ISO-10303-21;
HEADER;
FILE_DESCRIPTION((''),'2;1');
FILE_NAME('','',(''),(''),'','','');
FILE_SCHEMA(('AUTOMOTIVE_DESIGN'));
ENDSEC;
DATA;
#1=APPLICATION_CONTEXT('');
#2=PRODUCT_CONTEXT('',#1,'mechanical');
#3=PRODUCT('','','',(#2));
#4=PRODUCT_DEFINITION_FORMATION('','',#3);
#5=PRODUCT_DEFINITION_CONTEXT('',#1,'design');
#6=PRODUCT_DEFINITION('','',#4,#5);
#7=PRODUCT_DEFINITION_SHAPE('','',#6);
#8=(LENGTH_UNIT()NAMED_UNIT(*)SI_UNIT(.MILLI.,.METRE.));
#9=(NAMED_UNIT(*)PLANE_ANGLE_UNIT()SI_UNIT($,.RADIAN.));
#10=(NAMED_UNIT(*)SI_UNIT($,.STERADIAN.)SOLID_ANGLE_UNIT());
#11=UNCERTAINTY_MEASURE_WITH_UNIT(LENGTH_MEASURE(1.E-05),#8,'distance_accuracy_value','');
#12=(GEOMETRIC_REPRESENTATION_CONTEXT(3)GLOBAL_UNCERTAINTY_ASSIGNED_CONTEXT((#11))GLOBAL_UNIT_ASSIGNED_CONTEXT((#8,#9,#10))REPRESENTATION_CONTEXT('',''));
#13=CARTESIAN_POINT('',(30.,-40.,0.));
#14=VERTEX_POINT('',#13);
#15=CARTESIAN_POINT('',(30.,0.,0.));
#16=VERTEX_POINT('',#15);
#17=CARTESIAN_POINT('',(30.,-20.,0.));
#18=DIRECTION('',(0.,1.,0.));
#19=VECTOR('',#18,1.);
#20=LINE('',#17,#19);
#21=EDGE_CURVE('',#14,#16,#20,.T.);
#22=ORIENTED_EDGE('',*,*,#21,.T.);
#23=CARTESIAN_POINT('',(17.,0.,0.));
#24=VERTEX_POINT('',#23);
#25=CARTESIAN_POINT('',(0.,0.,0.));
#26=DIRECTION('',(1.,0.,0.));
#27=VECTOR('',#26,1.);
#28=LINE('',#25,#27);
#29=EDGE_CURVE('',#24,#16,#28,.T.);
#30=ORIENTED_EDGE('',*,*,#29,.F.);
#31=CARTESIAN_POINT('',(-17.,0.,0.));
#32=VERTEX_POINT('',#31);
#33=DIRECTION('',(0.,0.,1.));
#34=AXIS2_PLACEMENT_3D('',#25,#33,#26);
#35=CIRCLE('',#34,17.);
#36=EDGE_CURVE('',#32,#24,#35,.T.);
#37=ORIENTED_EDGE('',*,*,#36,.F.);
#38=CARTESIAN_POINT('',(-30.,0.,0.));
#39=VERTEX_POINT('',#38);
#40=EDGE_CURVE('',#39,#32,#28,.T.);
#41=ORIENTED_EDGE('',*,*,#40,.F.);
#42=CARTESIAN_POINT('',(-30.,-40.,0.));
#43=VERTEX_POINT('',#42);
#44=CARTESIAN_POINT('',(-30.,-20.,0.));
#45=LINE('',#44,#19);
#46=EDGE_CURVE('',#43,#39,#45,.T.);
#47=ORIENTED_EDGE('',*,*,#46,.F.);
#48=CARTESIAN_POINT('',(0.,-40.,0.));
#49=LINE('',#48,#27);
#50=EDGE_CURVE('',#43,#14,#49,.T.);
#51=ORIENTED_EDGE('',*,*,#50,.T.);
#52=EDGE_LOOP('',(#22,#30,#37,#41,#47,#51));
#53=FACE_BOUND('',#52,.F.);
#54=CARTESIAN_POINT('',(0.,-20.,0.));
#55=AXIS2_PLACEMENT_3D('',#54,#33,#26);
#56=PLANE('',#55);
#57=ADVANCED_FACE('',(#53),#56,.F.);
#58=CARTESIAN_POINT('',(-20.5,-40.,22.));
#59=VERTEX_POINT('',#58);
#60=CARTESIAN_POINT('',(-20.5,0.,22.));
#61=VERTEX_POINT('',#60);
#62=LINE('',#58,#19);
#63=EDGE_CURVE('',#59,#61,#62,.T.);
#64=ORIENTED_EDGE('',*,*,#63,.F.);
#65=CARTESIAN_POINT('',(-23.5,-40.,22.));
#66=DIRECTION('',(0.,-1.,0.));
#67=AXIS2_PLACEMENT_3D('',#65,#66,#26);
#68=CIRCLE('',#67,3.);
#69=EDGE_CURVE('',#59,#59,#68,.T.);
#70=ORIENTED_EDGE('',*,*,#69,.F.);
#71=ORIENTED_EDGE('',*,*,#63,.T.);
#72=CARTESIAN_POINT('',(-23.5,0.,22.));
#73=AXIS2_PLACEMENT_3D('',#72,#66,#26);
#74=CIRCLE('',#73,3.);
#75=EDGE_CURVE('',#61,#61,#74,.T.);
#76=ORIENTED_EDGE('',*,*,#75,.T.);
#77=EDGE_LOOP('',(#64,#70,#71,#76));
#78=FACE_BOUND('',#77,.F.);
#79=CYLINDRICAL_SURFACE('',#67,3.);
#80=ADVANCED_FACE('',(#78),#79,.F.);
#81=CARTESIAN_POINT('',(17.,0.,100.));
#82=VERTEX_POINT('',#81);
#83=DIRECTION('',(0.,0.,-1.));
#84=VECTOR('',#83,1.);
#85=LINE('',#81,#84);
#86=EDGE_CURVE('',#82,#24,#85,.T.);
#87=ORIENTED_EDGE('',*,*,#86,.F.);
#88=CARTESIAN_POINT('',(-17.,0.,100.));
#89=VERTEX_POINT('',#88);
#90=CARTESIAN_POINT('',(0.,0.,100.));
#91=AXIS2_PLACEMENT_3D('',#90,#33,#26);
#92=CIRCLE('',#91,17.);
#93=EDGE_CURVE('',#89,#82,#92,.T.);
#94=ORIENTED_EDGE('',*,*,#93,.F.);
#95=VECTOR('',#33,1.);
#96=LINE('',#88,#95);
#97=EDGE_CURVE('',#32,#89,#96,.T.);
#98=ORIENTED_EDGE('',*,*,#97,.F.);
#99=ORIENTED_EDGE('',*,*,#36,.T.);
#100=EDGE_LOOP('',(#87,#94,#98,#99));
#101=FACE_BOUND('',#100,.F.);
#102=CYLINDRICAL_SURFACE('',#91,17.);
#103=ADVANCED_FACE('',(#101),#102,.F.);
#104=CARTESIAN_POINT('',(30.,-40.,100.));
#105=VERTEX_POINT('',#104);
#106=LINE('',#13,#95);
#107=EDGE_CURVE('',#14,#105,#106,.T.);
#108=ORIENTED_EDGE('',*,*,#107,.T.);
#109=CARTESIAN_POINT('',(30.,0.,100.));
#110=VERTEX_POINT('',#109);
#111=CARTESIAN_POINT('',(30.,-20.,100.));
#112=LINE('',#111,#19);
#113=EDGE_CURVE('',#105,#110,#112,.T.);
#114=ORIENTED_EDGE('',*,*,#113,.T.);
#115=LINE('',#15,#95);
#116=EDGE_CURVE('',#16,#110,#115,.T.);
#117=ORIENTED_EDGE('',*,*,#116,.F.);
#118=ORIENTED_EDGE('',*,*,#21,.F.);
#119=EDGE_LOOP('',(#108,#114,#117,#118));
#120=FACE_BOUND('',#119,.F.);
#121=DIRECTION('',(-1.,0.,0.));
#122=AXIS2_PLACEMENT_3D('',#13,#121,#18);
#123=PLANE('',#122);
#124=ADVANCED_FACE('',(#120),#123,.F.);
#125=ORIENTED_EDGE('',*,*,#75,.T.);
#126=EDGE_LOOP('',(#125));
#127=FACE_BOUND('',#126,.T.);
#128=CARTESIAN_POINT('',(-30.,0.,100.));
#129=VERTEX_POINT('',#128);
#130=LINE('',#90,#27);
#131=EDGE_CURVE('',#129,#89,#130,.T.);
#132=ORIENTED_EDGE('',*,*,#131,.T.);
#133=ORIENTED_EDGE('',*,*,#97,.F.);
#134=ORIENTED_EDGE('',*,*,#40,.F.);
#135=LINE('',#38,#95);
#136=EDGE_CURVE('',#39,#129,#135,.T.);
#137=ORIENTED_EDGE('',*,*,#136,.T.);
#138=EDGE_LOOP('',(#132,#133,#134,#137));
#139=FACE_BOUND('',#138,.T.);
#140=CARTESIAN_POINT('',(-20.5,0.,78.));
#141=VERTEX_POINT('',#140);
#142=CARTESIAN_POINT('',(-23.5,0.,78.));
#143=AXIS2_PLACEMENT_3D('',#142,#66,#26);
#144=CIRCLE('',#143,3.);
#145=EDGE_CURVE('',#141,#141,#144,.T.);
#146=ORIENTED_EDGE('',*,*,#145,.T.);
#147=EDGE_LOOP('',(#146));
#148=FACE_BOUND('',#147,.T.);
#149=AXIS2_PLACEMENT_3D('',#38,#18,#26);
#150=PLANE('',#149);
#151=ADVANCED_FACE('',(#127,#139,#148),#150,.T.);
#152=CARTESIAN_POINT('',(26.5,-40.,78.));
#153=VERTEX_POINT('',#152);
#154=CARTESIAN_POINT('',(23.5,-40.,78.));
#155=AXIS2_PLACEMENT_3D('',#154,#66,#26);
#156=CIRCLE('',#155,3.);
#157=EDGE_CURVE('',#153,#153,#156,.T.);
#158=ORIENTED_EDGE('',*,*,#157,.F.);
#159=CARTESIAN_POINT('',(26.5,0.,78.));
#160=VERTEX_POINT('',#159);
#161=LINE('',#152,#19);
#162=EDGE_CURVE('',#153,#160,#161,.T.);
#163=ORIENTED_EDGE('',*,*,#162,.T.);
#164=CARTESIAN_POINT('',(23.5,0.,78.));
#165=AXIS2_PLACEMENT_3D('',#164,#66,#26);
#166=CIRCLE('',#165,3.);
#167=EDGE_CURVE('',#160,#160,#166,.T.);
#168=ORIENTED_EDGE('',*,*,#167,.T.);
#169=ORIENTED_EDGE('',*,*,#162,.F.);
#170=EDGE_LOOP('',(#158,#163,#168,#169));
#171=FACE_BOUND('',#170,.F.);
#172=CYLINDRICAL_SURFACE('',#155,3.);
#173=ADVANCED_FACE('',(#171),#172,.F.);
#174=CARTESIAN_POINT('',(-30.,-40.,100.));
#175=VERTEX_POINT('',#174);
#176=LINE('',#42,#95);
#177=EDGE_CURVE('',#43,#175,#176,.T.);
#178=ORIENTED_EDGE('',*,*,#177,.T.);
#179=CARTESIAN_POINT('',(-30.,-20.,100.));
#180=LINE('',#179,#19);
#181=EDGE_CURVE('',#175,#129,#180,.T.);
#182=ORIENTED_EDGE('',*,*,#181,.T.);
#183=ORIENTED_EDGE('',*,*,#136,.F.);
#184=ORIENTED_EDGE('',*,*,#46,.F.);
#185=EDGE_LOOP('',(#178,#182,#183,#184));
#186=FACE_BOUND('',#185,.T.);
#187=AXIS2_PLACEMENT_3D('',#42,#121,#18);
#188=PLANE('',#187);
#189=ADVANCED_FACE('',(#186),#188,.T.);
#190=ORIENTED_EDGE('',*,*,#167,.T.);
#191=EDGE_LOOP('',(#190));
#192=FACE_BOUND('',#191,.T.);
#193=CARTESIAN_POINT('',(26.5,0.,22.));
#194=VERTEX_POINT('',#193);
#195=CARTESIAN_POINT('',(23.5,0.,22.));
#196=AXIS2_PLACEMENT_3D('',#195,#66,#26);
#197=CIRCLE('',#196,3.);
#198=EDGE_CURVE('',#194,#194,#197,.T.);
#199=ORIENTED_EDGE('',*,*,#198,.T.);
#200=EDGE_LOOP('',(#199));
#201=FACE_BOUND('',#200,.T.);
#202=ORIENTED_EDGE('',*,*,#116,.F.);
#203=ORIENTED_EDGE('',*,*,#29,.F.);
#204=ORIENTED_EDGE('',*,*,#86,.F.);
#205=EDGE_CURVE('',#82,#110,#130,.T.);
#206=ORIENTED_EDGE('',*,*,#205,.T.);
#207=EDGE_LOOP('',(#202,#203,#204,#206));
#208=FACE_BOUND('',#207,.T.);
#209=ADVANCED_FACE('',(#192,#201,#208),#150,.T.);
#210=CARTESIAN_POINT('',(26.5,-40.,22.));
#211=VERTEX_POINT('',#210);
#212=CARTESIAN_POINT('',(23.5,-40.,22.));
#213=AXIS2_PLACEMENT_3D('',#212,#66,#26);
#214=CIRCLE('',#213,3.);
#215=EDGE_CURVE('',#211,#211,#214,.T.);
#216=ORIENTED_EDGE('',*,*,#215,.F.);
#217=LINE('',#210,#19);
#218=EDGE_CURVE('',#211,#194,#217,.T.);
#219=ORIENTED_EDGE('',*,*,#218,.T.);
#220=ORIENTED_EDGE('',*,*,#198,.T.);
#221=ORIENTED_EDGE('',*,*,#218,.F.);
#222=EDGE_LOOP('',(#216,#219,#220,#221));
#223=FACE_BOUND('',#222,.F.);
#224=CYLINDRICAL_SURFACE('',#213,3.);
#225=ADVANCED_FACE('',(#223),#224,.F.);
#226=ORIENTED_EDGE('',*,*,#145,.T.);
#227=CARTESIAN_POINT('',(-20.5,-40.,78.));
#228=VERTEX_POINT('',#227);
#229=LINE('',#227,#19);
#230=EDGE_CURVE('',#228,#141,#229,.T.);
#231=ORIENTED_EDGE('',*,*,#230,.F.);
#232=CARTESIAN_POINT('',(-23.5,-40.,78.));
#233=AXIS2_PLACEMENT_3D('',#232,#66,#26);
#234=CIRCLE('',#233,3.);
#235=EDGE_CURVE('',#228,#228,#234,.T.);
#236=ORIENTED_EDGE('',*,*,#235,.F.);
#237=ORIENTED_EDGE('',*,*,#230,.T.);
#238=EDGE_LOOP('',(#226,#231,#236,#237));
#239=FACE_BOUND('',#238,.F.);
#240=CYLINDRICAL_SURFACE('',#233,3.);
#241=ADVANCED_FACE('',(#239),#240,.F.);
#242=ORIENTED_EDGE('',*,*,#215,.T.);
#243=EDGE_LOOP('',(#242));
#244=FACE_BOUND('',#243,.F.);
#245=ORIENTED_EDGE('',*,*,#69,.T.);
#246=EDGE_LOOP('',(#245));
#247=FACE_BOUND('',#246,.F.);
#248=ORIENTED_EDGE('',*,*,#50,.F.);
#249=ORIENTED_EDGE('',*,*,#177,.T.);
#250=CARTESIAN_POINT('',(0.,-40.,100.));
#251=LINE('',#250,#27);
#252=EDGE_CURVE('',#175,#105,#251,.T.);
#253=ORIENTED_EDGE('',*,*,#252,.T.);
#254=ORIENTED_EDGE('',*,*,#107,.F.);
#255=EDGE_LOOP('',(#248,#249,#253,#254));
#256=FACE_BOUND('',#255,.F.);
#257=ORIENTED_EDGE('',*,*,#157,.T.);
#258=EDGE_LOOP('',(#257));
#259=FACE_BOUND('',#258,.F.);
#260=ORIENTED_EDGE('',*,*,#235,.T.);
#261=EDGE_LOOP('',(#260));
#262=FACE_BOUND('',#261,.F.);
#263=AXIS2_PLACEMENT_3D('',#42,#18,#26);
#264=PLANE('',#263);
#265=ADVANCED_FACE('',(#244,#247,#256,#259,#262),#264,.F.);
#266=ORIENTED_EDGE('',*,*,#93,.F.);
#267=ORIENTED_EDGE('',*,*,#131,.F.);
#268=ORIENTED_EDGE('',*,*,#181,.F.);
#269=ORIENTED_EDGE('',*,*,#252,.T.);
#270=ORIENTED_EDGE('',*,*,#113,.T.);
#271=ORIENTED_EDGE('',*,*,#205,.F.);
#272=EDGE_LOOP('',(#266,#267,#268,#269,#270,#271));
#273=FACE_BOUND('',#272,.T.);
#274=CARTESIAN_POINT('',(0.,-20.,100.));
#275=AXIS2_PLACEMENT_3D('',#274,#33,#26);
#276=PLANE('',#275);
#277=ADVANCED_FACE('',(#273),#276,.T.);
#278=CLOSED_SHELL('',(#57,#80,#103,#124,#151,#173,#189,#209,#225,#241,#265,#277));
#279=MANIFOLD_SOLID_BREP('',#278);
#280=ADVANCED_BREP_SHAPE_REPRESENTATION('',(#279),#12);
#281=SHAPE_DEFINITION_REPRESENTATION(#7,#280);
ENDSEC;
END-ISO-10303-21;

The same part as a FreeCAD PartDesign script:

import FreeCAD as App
import Part
import Sketcher
Q = App.Units.Quantity

doc = App.newDocument("Part")
body = doc.addObject("PartDesign::Body", "Body")

# Sketch on XY plane
sketch1 = body.newObject("Sketcher::SketchObject", "Sketch")
sketch1.AttachmentSupport = (doc.getObject("XY_Plane"), [""])
sketch1.MapMode = "FlatFace"
sketch1.addGeometry([
    Part.LineSegment(App.Vector(-30, 0, 0), App.Vector(-30, -40, 0)),
    Part.LineSegment(App.Vector(-30, -40, 0), App.Vector(30, -40, 0)),
    Part.LineSegment(App.Vector(30, -40, 0), App.Vector(30, 0, 0)),
    Part.LineSegment(App.Vector(30, 0, 0), App.Vector(-30, 0, 0)),
], False)
sketch1.addConstraint([
    Sketcher.Constraint("Coincident", 0, 2, 1, 1),
    Sketcher.Constraint("Coincident", 1, 2, 2, 1),
    Sketcher.Constraint("Coincident", 2, 2, 3, 1),
    Sketcher.Constraint("Coincident", 3, 2, 0, 1),
    Sketcher.Constraint("Vertical", 0),
    Sketcher.Constraint("Horizontal", 1),
    Sketcher.Constraint("Vertical", 2),
    Sketcher.Constraint("Horizontal", 3),
    Sketcher.Constraint("Symmetric", 2, 2, 3, 2, -1, 1),
    Sketcher.Constraint("DistanceX", 1, 1, 1, 2, Q("60 mm")),
    Sketcher.Constraint("DistanceY", 0, 2, 0, 1, Q("40 mm")),
])
pad1 = body.newObject("PartDesign::Pad", "Pad")
pad1.Profile = sketch1
pad1.Length = 100

# Sketch on XY plane
sketch2 = body.newObject("Sketcher::SketchObject", "Sketch001")
sketch2.AttachmentSupport = (doc.getObject("XY_Plane"), [""])
sketch2.MapMode = "FlatFace"
sketch2.AttachmentOffset = App.Placement(App.Vector(0, 0, 100), App.Rotation())
sketch2.addGeometry(Part.Circle(App.Vector(0, 0, 0), App.Vector(0, 0, 1), 17), False)
sketch2.addConstraint([
    Sketcher.Constraint("Coincident", 0, 3, -1, 1),
    Sketcher.Constraint("Diameter", 0, Q("34 mm")),
])
pocket1 = body.newObject("PartDesign::Pocket", "Pocket")
pocket1.Profile = sketch2
pocket1.Length = 100

# Sketch on XZ plane
sketch3 = body.newObject("Sketcher::SketchObject", "Sketch002")
sketch3.AttachmentSupport = (doc.getObject("XZ_Plane"), [""])
sketch3.MapMode = "FlatFace"
sketch3.AttachmentOffset = App.Placement(App.Vector(0, 0, 40), App.Rotation())
sketch3.addGeometry([
    Part.Circle(App.Vector(-23.5, 78, 0), App.Vector(0, 0, 1), 3),
    Part.Circle(App.Vector(-23.5, 22, 0), App.Vector(0, 0, 1), 3),
    Part.Circle(App.Vector(23.5, 22, 0), App.Vector(0, 0, 1), 3),
    Part.Circle(App.Vector(23.5, 78, 0), App.Vector(0, 0, 1), 3),
], False)
sketch3.addConstraint([
    Sketcher.Constraint("Equal", 0, 1),
    Sketcher.Constraint("Equal", 1, 2),
    Sketcher.Constraint("Equal", 2, 3),
    Sketcher.Constraint("Symmetric", 1, 3, 2, 3, -2),
    Sketcher.Constraint("Symmetric", 0, 3, 3, 3, -2),
    Sketcher.Constraint("Vertical", 0, 3, 1, 3),
    Sketcher.Constraint("Diameter", 0, Q("6 mm")),
    Sketcher.Constraint("DistanceY", -1, 1, 0, 3, Q("78 mm")),
    Sketcher.Constraint("DistanceY", -1, 1, 1, 3, Q("22 mm")),
    Sketcher.Constraint("DistanceX", 1, 3, 2, 3, Q("47 mm")),
])
pocket2 = body.newObject("PartDesign::Pocket", "Pocket001")
pocket2.Profile = sketch3
pocket2.Length = 45

doc.recompute()
